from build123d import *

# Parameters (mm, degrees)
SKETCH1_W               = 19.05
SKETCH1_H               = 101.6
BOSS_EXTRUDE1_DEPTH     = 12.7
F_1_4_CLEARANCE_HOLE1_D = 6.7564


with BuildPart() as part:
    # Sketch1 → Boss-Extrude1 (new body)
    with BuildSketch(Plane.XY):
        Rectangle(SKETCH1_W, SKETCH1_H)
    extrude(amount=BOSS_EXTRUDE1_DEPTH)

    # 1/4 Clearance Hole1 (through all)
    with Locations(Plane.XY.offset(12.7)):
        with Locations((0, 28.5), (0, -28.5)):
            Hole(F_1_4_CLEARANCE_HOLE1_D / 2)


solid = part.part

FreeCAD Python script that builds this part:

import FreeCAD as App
import Part
import Sketcher

V = App.Vector
Q = App.Units.Quantity

doc = App.newDocument("Part")
body = doc.addObject("PartDesign::Body", "Body")

# Sketch on XY plane
sketch1 = body.newObject("Sketcher::SketchObject", "Sketch")
sketch1.AttachmentSupport = (doc.getObject("XY_Plane"), [""])
sketch1.MapMode = "FlatFace"
sketch1.addGeometry([
    Part.LineSegment(V(-10, 51, 0), V(-10, -51, 0)),
    Part.LineSegment(V(-10, -51, 0), V(10, -51, 0)),
    Part.LineSegment(V(10, -51, 0), V(10, 51, 0)),
    Part.LineSegment(V(10, 51, 0), V(-10, 51, 0)),
], False)
sketch1.addConstraint([
    Sketcher.Constraint("Coincident", 0, 2, 1, 1),
    Sketcher.Constraint("Coincident", 1, 2, 2, 1),
    Sketcher.Constraint("Coincident", 2, 2, 3, 1),
    Sketcher.Constraint("Coincident", 3, 2, 0, 1),
    Sketcher.Constraint("Vertical", 0),
    Sketcher.Constraint("Horizontal", 1),
    Sketcher.Constraint("Vertical", 2),
    Sketcher.Constraint("Horizontal", 3),
    Sketcher.Constraint("Symmetric", 0, 2, 2, 2, -1, 1),
    Sketcher.Constraint("DistanceY", 0, 2, 0, 1, Q("4 in")),
    Sketcher.Constraint("DistanceX", 1, 1, 1, 2, Q("0.75 in")),
])
pad1 = body.newObject("PartDesign::Pad", "Pad")
pad1.Profile = sketch1
pad1.Length = Q("0.5 in")

# Sketch on XY plane
sketch2 = body.newObject("Sketcher::SketchObject", "Sketch001")
sketch2.AttachmentSupport = (doc.getObject("XY_Plane"), [""])
sketch2.MapMode = "FlatFace"
sketch2.AttachmentOffset = App.Placement(V(0, 0, 0.5 * 25.4), App.Rotation())
sketch2.addGeometry([
    Part.Circle(V(0, 28.5, 0), V(0, 0, 1), 3.4),
    Part.Circle(V(0, -28.5, 0), V(0, 0, 1), 3.4),
], False)
sketch2.addConstraint([
    Sketcher.Constraint("Equal", 0, 1),
    Sketcher.Constraint("Symmetric", 0, 3, 1, 3, -1, 1),
    Sketcher.Constraint("PointOnObject", 0, 3, -2),
    Sketcher.Constraint("Diameter", 0, Q("0.266 in")),
    Sketcher.Constraint("DistanceY", -1, 1, 0, 3, 28.5),
])
doc.recompute()
hole = body.newObject("PartDesign::Hole", "Hole")
hole.Profile = sketch2
hole.ThreadType = "None"
hole.Diameter = Q("0.266 in")
hole.DepthType = "ThroughAll"

doc.recompute()
